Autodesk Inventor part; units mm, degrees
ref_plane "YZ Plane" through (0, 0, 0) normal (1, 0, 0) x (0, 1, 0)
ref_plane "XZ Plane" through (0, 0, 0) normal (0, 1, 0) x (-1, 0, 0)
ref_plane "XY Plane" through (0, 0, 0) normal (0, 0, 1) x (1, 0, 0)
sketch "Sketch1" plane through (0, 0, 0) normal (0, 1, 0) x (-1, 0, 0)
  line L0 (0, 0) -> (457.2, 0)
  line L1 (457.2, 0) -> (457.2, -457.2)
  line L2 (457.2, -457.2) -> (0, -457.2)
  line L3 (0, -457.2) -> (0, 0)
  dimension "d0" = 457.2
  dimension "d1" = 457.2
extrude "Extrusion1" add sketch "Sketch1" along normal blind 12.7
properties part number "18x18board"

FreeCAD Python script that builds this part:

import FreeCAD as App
import Part
import Sketcher

V = App.Vector
Q = App.Units.Quantity

doc = App.newDocument("Part")
body = doc.addObject("PartDesign::Body", "Body")

# Sketch on XZ plane
sketch1 = doc.addObject("Sketcher::SketchObject", "Sketch")
body.addObject(sketch1)
sketch1.AttachmentSupport = (doc.XZ_Plane, [""])
sketch1.MapMode = "FlatFace"
sketch1.addGeometry([
    Part.LineSegment(V(-457, 0, 0), V(0, 0, 0)),
    Part.LineSegment(V(0, 0, 0), V(0, -457, 0)),
    Part.LineSegment(V(0, -457, 0), V(-457, -457, 0)),
    Part.LineSegment(V(-457, -457, 0), V(-457, 0, 0)),
], False)
sketch1.addConstraint([
    Sketcher.Constraint("Coincident", 0, 2, 1, 1),
    Sketcher.Constraint("Coincident", 1, 2, 2, 1),
    Sketcher.Constraint("Coincident", 2, 2, 3, 1),
    Sketcher.Constraint("Coincident", 3, 2, 0, 1),
    Sketcher.Constraint("Horizontal", 0),
    Sketcher.Constraint("Vertical", 1),
    Sketcher.Constraint("Horizontal", 2),
    Sketcher.Constraint("Vertical", 3),
    Sketcher.Constraint("Coincident", 0, 2, -1, 1),
    Sketcher.Constraint("Equal", 2, 1),
    Sketcher.Constraint("DistanceX", 0, 1, 0, 2, Q("18 in")),
])
pad1 = doc.addObject("PartDesign::Pad", "Pad")
body.addObject(pad1)
pad1.Profile = sketch1
pad1.Length = Q("0.5 in")
pad1.Reversed = True

doc.recompute()
